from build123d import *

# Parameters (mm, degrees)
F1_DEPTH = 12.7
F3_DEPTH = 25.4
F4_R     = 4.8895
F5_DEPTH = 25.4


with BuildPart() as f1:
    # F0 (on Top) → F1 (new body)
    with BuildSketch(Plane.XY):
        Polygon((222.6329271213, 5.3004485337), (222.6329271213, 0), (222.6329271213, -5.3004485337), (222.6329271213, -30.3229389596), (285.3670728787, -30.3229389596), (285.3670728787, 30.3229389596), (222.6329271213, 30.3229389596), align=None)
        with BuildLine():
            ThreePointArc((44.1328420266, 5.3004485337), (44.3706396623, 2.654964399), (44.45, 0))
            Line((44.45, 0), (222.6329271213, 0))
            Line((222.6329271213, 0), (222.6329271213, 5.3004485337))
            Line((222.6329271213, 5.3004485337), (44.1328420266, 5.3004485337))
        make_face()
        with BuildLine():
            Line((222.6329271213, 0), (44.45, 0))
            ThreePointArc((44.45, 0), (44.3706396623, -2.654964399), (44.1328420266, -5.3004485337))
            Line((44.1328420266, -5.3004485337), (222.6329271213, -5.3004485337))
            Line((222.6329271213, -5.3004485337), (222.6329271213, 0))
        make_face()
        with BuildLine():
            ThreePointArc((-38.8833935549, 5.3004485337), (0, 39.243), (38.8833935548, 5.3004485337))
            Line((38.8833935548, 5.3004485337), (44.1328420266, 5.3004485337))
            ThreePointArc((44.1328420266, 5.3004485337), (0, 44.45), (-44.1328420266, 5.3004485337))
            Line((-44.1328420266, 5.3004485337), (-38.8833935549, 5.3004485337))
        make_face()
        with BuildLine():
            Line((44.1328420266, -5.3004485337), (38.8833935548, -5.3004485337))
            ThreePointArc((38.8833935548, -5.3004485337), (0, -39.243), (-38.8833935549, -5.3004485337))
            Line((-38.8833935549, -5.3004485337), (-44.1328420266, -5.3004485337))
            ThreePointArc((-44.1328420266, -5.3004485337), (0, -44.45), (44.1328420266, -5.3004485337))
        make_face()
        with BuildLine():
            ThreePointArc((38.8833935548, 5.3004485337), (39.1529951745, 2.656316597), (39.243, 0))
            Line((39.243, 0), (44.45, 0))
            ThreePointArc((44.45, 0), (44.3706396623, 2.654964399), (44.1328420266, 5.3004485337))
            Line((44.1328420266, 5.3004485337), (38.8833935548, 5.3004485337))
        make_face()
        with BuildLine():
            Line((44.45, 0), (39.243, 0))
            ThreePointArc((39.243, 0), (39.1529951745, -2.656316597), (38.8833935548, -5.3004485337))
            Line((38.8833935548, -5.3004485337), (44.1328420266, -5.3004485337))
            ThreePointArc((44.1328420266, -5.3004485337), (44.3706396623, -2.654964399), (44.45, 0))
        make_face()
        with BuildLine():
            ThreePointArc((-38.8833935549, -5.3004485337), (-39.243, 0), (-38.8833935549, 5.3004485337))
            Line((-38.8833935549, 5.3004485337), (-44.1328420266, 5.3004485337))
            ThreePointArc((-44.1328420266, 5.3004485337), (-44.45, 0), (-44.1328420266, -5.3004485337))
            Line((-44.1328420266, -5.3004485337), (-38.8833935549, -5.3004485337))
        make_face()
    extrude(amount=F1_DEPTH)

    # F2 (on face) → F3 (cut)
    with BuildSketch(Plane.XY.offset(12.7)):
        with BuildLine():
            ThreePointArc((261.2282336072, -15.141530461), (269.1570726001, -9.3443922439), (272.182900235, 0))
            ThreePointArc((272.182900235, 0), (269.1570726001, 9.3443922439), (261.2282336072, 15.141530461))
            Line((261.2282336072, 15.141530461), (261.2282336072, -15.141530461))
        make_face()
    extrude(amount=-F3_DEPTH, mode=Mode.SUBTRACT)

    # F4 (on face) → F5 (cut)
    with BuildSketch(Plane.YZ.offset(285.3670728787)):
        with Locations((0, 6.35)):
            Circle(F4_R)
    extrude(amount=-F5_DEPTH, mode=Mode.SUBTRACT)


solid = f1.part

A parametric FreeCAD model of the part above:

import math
import FreeCAD as App
import Part
import Sketcher

V = App.Vector
Q = App.Units.Quantity

doc = App.newDocument("Part")
body = doc.addObject("PartDesign::Body", "Body")

# Sketch on XY plane
sketch1 = body.newObject("Sketcher::SketchObject", "Sketch")
sketch1.AttachmentSupport = (doc.getObject("XY_Plane"), [""])
sketch1.MapMode = "FlatFace"
sketch1.addGeometry(Part.LineSegment(V(222.632927, -30.322939, 0), V(285.367073, -30.322939, 0)), False)
sketch1.addGeometry(Part.LineSegment(V(285.367073, -30.322939, 0), V(285.367073, 30.322939, 0)), False)
sketch1.addGeometry(Part.LineSegment(V(285.367073, 30.322939, 0), V(222.632927, 30.322939, 0)), False)
sketch1.addGeometry(Part.LineSegment(V(222.632927, 30.322939, 0), V(222.632927, 5.300449, 0)), False)
sketch1.addGeometry(Part.LineSegment(V(222.632927, 5.300449, 0), V(44.132842, 5.300449, 0)), False)
sketch1.addGeometry(Part.ArcOfCircle(Part.Circle(V(0, 0, 0), V(0, 0, 1), 44.45), math.radians(6.848542), math.radians(173.151458)), False)
sketch1.addGeometry(Part.ArcOfCircle(Part.Circle(V(0, 0, 0), V(0, 0, 1), 44.45), math.radians(173.151458), math.radians(186.848542)), False)
sketch1.addGeometry(Part.ArcOfCircle(Part.Circle(V(0, 0, 0), V(0, 0, 1), 44.45), math.radians(-173.151458), math.radians(-6.848542)), False)
sketch1.addGeometry(Part.LineSegment(V(44.132842, -5.300449, 0), V(222.632927, -5.300449, 0)), False)
sketch1.addGeometry(Part.LineSegment(V(222.632927, -5.300449, 0), V(222.632927, -30.322939, 0)), False)
sketch1.addGeometry(Part.ArcOfCircle(Part.Circle(V(0, 0, 0), V(0, 0, 1), 39.243), math.radians(7.762515), math.radians(172.237485)), False)
sketch1.addGeometry(Part.ArcOfCircle(Part.Circle(V(0, 0, 0), V(0, 0, 1), 39.243), math.radians(0), math.radians(7.762515)), False)
sketch1.addGeometry(Part.ArcOfCircle(Part.Circle(V(0, 0, 0), V(0, 0, 1), 39.243), math.radians(-7.762515), math.radians(0)), False)
sketch1.addGeometry(Part.ArcOfCircle(Part.Circle(V(0, 0, 0), V(0, 0, 1), 39.243), math.radians(-172.237485), math.radians(-7.762515)), False)
sketch1.addGeometry(Part.ArcOfCircle(Part.Circle(V(0, 0, 0), V(0, 0, 1), 39.243), math.radians(172.237485), math.radians(187.762515)), False)
sketch1.addConstraint(Sketcher.Constraint("Coincident", 0, 2, 1, 1))
sketch1.addConstraint(Sketcher.Constraint("Coincident", 1, 2, 2, 1))
sketch1.addConstraint(Sketcher.Constraint("Coincident", 2, 2, 3, 1))
sketch1.addConstraint(Sketcher.Constraint("Coincident", 3, 2, 4, 1))
sketch1.addConstraint(Sketcher.Constraint("Coincident", 4, 2, 5, 1))
sketch1.addConstraint(Sketcher.Constraint("Tangent", 5, 2, 6, 1))
sketch1.addConstraint(Sketcher.Constraint("Tangent", 6, 2, 7, 1))
sketch1.addConstraint(Sketcher.Constraint("Coincident", 7, 2, 8, 1))
sketch1.addConstraint(Sketcher.Constraint("Coincident", 8, 2, 9, 1))
sketch1.addConstraint(Sketcher.Constraint("Coincident", 9, 2, 0, 1))
sketch1.addConstraint(Sketcher.Constraint("Tangent", 10, 1, 11, 2))
sketch1.addConstraint(Sketcher.Constraint("Tangent", 11, 1, 12, 2))
sketch1.addConstraint(Sketcher.Constraint("Tangent", 12, 1, 13, 2))
sketch1.addConstraint(Sketcher.Constraint("Tangent", 13, 1, 14, 2))
sketch1.addConstraint(Sketcher.Constraint("Tangent", 14, 1, 10, 2))
sketch1.addConstraint(Sketcher.Constraint("Horizontal", 0))
sketch1.addConstraint(Sketcher.Constraint("Vertical", 1))
sketch1.addConstraint(Sketcher.Constraint("Horizontal", 2))
sketch1.addConstraint(Sketcher.Constraint("Vertical", 3))
sketch1.addConstraint(Sketcher.Constraint("Horizontal", 4))
sketch1.addConstraint(Sketcher.Constraint("Horizontal", 8))
sketch1.addConstraint(Sketcher.Constraint("Vertical", 9))
sketch1.addConstraint(Sketcher.Constraint("Coincident", 5, 3, -1, 1))
sketch1.addConstraint(Sketcher.Constraint("Coincident", 7, 3, -1, 1))
sketch1.addConstraint(Sketcher.Constraint("Coincident", 10, 3, -1, 1))
sketch1.addConstraint(Sketcher.Constraint("Coincident", 12, 3, -1, 1))
sketch1.addConstraint(Sketcher.Constraint("Symmetric", 3, 2, 8, 2, -1))
sketch1.addConstraint(Sketcher.Constraint("PointOnObject", 11, 1, -1))
sketch1.addConstraint(Sketcher.Constraint("Horizontal", 4, 2, 5, 2))
sketch1.addConstraint(Sketcher.Constraint("Horizontal", 6, 2, 7, 2))
sketch1.addConstraint(Sketcher.Constraint("Horizontal", 5, 2, 10, 1))
sketch1.addConstraint(Sketcher.Constraint("Horizontal", 8, 2, 12, 1))
sketch1.addConstraint(Sketcher.Constraint("Horizontal", 12, 1, 13, 1))
sketch1.addConstraint(Sketcher.Constraint("Horizontal", 10, 1, 14, 1))
sketch1.addConstraint(Sketcher.Constraint("Equal", 3, 9))
sketch1.addConstraint(Sketcher.Constraint("Radius", 5, Q("1.75 in")))
sketch1.addConstraint(Sketcher.Constraint("Radius", 10, Q("1.545 in")))
sketch1.addConstraint(Sketcher.Constraint("DistanceY", 3, 2, 3, 1, Q("25.02249 mm")))
sketch1.addConstraint(Sketcher.Constraint("DistanceX", 0, 1, 0, 2, Q("62.734146 mm")))
sketch1.addConstraint(Sketcher.Constraint("DistanceX", 4, 2, 4, 1, Q("178.500085 mm")))
sketch1.addConstraint(Sketcher.Constraint("DistanceY", 1, 1, 1, 2, Q("60.645878 mm")))
pad1 = body.newObject("PartDesign::Pad", "Pad")
pad1.Profile = sketch1
pad1.Length = Q("0.5 in")

# Sketch on XY plane
sketch2 = body.newObject("Sketcher::SketchObject", "Sketch001")
sketch2.AttachmentSupport = (doc.getObject("XY_Plane"), [""])
sketch2.MapMode = "FlatFace"
sketch2.AttachmentOffset = App.Placement(V(0, 0, 0.5 * 25.4), App.Rotation())
sketch2.addGeometry(Part.ArcOfCircle(Part.Circle(V(256.241262, 0, 0), V(0, 0, 1), 15.941638), math.radians(-71.770331), math.radians(0)), False)
sketch2.addGeometry(Part.ArcOfCircle(Part.Circle(V(256.241262, 0, 0), V(0, 0, 1), 15.941638), math.radians(0), math.radians(71.770331)), False)
sketch2.addGeometry(Part.LineSegment(V(261.228234, 15.14153, 0), V(261.228234, -15.14153, 0)), False)
sketch2.addConstraint(Sketcher.Constraint("Tangent", 0, 2, 1, 1))
sketch2.addConstraint(Sketcher.Constraint("Coincident", 1, 2, 2, 1))
sketch2.addConstraint(Sketcher.Constraint("Coincident", 2, 2, 0, 1))
sketch2.addConstraint(Sketcher.Constraint("Vertical", 2))
sketch2.addConstraint(Sketcher.Constraint("Equal", 0, 1))
sketch2.addConstraint(Sketcher.Constraint("PointOnObject", 0, 3, -1))
sketch2.addConstraint(Sketcher.Constraint("PointOnObject", 0, 2, -1))
sketch2.addConstraint(Sketcher.Constraint("Radius", 0, Q("15.941638 mm")))
sketch2.addConstraint(Sketcher.Constraint("DistanceY", 2, 2, 2, 1, Q("30.283061 mm")))
sketch2.addConstraint(Sketcher.Constraint("DistanceX", -1, 1, 0, 2, Q("272.1829 mm")))
pocket1 = body.newObject("PartDesign::Pocket", "Pocket")
pocket1.Profile = sketch2
pocket1.Length = Q("1 in")

# Sketch on YZ plane
sketch3 = body.newObject("Sketcher::SketchObject", "Sketch002")
sketch3.AttachmentSupport = (doc.getObject("YZ_Plane"), [""])
sketch3.MapMode = "FlatFace"
sketch3.AttachmentOffset = App.Placement(V(0, 0, 285.367073), App.Rotation())
sketch3.addGeometry(Part.Circle(V(0, 6.35, 0), V(0, 0, 1), 4.8895), False)
sketch3.addConstraint(Sketcher.Constraint("PointOnObject", 0, 3, -2))
sketch3.addConstraint(Sketcher.Constraint("Diameter", 0, Q("0.385 in")))
sketch3.addConstraint(Sketcher.Constraint("DistanceY", -1, 1, 0, 3, Q("0.25 in")))
pocket2 = body.newObject("PartDesign::Pocket", "Pocket001")
pocket2.Profile = sketch3
pocket2.Length = Q("1 in")

doc.recompute()
